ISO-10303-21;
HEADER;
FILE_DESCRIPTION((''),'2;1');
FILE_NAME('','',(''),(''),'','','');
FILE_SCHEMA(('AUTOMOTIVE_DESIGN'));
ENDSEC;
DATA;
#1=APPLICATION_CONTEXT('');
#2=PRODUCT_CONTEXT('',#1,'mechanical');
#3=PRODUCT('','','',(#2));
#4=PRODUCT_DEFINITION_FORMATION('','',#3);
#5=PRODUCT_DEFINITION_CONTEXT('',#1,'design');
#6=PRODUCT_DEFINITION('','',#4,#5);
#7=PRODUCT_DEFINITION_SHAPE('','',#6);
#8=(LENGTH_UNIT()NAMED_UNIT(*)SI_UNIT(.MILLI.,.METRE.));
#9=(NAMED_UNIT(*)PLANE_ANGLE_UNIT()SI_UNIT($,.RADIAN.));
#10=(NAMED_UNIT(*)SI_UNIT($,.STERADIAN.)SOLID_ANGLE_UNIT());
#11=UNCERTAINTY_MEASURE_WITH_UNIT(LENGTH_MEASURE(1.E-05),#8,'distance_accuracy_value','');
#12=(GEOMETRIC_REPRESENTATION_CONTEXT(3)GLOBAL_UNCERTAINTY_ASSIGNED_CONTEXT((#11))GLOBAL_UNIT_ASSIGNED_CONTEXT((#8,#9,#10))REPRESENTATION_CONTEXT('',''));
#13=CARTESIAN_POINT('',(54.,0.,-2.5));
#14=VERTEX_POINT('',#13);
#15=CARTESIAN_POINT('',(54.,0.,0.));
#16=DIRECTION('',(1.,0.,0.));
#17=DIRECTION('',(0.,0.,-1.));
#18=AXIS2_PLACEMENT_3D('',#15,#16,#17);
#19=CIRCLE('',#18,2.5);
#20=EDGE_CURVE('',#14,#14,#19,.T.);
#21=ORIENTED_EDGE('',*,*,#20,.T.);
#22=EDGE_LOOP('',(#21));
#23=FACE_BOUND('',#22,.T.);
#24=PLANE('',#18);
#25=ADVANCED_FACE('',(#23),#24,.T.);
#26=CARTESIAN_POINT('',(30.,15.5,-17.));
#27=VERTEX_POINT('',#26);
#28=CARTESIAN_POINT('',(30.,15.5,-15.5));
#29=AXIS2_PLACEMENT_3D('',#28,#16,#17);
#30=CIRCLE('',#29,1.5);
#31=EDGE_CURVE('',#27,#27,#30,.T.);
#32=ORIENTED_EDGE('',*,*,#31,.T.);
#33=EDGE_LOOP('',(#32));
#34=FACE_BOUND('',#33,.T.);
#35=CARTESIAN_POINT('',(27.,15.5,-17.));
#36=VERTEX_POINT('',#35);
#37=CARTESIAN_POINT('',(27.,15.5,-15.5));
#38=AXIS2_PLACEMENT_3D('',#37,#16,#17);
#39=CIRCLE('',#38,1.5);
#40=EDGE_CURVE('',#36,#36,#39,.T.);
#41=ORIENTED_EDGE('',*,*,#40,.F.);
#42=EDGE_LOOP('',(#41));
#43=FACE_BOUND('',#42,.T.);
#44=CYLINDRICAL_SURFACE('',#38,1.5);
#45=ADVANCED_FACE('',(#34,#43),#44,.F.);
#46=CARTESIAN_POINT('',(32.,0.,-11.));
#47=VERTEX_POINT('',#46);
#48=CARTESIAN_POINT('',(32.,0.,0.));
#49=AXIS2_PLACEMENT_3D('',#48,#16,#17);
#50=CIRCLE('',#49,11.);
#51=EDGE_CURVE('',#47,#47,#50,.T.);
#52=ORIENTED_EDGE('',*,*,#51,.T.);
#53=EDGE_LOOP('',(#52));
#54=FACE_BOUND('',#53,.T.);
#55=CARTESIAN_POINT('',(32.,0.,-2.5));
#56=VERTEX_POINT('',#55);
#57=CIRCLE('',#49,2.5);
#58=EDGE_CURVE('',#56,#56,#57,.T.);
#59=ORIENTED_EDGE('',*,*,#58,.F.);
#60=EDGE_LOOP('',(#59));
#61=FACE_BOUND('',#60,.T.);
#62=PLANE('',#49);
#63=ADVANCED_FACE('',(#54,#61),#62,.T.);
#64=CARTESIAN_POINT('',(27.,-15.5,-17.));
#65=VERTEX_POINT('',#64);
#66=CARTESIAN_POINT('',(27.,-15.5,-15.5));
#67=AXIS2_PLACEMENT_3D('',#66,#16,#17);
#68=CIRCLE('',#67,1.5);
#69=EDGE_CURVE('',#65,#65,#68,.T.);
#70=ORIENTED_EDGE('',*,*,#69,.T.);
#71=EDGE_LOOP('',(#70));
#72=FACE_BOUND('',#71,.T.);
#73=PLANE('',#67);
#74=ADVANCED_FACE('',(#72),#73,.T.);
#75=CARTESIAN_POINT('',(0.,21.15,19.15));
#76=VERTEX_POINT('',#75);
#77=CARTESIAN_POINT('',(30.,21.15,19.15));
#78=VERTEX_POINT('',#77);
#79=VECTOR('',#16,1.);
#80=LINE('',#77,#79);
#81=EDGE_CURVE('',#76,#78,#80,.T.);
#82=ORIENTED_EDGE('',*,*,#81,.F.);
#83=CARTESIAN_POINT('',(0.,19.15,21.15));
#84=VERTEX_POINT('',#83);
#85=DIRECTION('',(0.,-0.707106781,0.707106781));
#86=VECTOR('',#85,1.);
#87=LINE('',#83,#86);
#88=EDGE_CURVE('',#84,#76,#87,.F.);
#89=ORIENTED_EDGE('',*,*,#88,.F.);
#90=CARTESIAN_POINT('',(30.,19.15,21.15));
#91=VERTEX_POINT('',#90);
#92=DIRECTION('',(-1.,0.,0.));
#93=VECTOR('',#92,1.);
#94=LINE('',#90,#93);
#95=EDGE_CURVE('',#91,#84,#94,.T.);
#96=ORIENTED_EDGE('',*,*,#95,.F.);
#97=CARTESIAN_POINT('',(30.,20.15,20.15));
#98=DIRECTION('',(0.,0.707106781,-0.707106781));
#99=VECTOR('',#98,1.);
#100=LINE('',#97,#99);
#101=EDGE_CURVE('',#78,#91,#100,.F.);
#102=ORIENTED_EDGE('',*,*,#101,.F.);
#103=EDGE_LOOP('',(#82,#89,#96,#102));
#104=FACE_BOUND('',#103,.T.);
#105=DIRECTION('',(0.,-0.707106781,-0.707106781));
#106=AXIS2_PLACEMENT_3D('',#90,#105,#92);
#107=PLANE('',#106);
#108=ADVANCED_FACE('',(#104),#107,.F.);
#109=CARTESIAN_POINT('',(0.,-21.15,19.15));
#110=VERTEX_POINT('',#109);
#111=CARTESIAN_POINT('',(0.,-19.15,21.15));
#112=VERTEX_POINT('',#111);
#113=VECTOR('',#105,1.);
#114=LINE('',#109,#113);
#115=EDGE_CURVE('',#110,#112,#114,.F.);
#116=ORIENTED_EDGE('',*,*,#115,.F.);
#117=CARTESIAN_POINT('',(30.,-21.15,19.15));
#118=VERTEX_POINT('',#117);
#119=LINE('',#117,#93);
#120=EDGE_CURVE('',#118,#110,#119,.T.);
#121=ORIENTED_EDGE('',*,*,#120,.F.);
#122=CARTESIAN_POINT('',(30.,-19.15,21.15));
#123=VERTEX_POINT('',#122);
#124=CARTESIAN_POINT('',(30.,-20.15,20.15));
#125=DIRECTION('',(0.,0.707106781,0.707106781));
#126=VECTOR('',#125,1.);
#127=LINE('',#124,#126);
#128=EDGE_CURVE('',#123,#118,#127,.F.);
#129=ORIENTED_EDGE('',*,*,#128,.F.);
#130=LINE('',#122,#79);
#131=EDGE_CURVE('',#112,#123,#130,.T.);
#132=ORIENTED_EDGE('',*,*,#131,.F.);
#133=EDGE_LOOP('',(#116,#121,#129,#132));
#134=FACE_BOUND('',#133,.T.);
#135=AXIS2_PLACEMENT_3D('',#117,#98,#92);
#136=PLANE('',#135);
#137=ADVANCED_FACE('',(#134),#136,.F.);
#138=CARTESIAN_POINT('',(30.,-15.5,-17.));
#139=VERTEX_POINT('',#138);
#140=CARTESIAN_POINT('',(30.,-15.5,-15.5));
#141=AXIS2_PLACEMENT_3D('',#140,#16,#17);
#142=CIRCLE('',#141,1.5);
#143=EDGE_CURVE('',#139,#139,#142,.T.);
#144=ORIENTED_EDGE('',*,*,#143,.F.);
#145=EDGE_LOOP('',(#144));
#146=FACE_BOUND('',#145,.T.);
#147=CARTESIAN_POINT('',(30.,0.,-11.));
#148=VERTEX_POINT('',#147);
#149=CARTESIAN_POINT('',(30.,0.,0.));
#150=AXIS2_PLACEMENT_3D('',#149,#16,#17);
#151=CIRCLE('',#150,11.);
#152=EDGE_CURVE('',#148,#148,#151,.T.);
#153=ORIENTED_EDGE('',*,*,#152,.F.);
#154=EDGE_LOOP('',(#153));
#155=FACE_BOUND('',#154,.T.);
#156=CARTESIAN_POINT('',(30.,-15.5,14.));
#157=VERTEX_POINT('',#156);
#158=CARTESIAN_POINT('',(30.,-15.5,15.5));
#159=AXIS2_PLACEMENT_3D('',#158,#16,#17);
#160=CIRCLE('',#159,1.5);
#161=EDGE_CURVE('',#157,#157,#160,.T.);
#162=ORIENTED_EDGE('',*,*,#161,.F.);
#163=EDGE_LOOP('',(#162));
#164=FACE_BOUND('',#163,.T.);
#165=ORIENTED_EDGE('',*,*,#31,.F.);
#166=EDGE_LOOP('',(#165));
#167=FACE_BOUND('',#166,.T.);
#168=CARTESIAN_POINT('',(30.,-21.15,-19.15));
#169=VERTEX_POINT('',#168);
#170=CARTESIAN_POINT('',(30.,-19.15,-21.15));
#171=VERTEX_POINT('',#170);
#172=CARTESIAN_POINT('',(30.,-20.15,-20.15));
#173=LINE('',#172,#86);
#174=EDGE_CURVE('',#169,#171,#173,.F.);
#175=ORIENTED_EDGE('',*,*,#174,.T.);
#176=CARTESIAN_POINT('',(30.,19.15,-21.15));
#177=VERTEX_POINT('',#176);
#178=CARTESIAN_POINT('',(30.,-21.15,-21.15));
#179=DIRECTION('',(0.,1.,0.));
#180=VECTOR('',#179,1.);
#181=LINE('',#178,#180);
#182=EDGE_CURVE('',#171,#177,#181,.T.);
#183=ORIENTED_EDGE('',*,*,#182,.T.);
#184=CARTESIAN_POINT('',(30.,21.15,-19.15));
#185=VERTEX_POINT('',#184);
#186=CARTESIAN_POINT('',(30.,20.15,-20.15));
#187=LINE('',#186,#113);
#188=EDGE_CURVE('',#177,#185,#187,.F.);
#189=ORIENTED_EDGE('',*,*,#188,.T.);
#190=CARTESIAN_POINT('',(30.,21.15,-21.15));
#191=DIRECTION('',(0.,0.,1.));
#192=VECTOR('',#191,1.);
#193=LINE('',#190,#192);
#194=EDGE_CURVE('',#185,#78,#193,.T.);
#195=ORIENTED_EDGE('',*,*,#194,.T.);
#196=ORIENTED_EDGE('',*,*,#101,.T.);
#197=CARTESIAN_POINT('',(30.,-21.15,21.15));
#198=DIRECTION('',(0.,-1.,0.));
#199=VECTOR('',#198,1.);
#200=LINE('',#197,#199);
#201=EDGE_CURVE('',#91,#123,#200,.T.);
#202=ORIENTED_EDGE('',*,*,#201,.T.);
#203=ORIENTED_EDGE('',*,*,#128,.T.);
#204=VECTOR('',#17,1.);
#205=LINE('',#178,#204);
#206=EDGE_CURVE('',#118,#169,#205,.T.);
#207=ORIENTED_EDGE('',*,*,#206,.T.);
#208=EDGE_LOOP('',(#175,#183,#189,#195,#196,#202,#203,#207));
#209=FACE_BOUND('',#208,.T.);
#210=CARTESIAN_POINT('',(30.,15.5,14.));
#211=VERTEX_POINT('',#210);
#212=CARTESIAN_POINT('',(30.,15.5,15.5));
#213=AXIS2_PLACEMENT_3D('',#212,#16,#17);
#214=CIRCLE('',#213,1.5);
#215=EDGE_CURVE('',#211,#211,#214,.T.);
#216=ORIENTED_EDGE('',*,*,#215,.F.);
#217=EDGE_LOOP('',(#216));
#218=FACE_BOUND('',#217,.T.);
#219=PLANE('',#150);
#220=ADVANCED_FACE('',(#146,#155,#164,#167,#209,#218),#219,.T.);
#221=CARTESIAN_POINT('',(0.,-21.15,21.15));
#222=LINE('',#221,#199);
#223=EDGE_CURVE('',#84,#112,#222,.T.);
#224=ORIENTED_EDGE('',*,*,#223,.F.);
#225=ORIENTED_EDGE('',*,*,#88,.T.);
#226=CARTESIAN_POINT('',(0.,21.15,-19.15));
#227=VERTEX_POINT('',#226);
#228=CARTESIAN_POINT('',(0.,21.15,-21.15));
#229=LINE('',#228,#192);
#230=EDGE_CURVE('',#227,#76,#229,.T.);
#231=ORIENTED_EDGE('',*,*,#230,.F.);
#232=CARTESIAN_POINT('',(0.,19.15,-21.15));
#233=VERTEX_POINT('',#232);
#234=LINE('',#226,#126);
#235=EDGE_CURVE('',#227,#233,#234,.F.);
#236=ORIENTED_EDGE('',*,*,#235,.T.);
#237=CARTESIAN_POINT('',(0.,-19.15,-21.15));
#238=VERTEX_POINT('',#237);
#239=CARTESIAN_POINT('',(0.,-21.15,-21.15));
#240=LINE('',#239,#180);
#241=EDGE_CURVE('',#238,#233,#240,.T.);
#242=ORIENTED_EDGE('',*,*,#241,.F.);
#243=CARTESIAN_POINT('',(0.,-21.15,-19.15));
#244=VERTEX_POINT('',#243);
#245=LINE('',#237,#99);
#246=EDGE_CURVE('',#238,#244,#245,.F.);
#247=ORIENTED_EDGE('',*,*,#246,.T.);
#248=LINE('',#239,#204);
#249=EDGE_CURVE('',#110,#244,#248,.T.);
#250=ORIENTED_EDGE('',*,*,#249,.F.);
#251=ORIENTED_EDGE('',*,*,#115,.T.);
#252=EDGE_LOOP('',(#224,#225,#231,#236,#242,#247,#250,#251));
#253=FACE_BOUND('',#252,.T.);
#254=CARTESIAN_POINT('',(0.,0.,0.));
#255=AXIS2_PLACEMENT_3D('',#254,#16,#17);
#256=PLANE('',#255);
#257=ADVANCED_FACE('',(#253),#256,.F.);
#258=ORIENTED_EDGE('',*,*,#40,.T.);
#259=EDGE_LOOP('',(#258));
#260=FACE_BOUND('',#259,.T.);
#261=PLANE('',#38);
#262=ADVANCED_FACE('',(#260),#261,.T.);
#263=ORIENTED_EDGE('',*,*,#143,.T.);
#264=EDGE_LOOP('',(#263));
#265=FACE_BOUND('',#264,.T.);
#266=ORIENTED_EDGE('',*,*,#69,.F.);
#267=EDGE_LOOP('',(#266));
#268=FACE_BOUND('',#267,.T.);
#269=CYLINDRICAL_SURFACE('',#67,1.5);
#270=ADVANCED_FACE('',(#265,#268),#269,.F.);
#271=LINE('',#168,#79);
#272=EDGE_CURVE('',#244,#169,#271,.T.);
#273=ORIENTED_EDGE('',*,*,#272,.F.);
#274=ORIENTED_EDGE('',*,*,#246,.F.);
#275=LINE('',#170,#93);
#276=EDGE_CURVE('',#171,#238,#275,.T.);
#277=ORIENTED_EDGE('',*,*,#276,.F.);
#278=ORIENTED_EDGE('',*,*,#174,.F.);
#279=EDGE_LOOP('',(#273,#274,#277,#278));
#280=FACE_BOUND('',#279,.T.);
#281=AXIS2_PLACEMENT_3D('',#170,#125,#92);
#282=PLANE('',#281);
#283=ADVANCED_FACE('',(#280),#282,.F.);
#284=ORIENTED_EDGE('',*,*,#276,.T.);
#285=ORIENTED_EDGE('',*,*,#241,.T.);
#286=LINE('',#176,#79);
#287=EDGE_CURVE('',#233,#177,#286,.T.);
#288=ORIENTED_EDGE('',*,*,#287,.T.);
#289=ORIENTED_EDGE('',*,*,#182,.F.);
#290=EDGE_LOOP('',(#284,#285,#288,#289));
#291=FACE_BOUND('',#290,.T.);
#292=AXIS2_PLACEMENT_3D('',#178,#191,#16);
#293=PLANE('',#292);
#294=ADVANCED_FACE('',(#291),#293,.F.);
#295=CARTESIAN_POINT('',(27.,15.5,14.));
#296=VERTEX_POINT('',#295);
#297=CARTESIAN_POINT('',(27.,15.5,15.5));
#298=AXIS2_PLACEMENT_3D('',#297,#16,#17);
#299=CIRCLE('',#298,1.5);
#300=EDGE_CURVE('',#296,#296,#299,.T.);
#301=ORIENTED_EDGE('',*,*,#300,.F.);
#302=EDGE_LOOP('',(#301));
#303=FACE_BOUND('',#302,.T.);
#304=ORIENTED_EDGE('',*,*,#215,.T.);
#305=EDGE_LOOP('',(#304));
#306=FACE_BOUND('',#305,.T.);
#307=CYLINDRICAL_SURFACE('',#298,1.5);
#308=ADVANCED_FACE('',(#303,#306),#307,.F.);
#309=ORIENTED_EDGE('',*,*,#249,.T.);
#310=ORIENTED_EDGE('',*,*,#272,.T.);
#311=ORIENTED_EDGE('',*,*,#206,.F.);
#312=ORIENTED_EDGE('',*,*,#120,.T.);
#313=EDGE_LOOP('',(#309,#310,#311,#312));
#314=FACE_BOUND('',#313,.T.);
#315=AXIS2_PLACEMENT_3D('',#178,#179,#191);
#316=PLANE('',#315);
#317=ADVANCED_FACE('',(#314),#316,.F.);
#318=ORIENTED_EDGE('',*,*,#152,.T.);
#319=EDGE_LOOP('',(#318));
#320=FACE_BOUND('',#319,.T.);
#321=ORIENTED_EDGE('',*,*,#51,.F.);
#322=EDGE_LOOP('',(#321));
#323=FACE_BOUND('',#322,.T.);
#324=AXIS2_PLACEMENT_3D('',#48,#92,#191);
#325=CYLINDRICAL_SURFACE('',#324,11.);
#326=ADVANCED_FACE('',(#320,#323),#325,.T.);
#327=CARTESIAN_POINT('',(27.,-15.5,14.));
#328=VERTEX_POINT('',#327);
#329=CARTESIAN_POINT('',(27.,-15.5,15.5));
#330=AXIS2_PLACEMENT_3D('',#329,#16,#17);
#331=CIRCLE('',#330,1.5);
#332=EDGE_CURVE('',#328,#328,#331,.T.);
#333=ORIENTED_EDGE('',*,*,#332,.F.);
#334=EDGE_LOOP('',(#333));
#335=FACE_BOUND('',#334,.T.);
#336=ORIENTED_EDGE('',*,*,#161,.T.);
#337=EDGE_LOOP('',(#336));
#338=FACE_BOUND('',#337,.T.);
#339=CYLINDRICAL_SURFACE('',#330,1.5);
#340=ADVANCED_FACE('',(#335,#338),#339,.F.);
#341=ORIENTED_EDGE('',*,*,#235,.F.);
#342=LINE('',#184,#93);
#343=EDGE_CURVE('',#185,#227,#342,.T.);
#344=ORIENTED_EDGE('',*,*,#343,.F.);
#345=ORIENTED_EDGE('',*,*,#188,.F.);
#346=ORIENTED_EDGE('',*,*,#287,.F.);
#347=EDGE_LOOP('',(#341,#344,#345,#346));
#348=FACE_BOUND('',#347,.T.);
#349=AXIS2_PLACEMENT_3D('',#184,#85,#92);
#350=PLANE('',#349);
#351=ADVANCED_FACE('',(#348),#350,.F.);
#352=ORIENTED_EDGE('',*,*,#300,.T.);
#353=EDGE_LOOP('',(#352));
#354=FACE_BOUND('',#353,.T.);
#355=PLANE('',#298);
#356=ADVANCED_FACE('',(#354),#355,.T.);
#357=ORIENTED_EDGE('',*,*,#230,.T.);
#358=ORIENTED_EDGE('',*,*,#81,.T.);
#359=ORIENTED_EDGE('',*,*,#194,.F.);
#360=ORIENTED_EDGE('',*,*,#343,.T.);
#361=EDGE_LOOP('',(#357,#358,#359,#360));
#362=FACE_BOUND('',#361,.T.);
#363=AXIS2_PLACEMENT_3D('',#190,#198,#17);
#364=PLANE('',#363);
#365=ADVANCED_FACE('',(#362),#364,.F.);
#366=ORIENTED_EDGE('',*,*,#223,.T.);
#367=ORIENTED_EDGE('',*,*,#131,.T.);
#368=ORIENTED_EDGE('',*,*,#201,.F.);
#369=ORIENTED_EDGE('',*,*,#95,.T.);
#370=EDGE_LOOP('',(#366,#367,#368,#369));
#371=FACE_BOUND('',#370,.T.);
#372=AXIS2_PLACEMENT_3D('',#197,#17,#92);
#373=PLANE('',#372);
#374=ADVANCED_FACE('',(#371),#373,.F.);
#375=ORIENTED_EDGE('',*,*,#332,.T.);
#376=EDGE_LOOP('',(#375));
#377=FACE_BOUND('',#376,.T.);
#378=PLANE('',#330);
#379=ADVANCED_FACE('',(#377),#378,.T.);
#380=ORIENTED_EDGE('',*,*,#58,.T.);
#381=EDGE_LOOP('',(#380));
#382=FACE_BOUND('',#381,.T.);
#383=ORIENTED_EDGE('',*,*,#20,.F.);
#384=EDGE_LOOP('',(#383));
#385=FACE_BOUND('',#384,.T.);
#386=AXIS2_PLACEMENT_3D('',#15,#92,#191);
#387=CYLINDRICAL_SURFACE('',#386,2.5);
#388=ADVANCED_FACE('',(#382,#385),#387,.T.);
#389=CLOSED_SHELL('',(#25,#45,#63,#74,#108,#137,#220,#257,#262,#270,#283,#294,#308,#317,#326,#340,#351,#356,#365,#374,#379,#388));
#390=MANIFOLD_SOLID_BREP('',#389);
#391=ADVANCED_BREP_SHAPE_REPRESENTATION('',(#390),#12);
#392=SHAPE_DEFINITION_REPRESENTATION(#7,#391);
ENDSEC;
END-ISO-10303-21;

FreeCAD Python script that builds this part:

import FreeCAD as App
import Part
import Sketcher
from FreeCAD import Vector


def edges_at(feature, points):
    """Names of the edges that pass closest to the given points."""
    edges = feature.Shape.Edges
    near = lambda p: min(range(len(edges)), key=lambda i: edges[i].distToShape(Part.Vertex(*p))[0])
    return sorted({f"Edge{near(p) + 1}" for p in points})


def add_polygon(sketch, points):
    """Adds a closed chain of lines whose ends are joined by coincident constraints."""
    first, n = sketch.GeometryCount, len(points)
    for a, b in zip(points, points[1:] + points[:1]):
        sketch.addGeometry(Part.LineSegment(App.Vector(*a, 0), App.Vector(*b, 0)), False)
    for i in range(n):
        sketch.addConstraint(Sketcher.Constraint("Coincident", first + i, 2, first + (i + 1) % n, 1))

doc = App.newDocument("Part")
body = doc.addObject("PartDesign::Body", "Body")

# Sketch on YZ plane
sketch1 = body.newObject("Sketcher::SketchObject", "Sketch")
sketch1.AttachmentSupport = (doc.getObject("YZ_Plane"), [""])
sketch1.MapMode = "FlatFace"
add_polygon(sketch1, [(21, 21), (-21, 21), (-21, -21), (21, -21)])  # lines 0-3
sketch1.addConstraint([
    Sketcher.Constraint("Horizontal", 0),
    Sketcher.Constraint("Vertical", 1),
    Sketcher.Constraint("Horizontal", 2),
    Sketcher.Constraint("Vertical", 3),
    Sketcher.Constraint("Symmetric", 0, 2, 2, 2, -1, 1),
    Sketcher.Constraint("Equal", 2, 1),
    Sketcher.Constraint("DistanceX", 0, 2, 0, 1, 42.3),
])
pad1 = body.newObject("PartDesign::Pad", "Pad")
pad1.Profile = sketch1
pad1.Length = 30
doc.recompute()

chamfer = body.newObject("PartDesign::Chamfer", "Chamfer")
chamfer.Base = (pad1, edges_at(pad1, [
    (15, 21.15, 21.15),
    (15, 21.15, -21.15),
    (15, -21.15, -21.15),
    (15, -21.15, 21.15),
]))
chamfer.Size = 2

# Sketch on YZ plane
sketch2 = body.newObject("Sketcher::SketchObject", "Sketch001")
sketch2.AttachmentSupport = (doc.getObject("YZ_Plane"), [""])
sketch2.MapMode = "FlatFace"
sketch2.AttachmentOffset = App.Placement(Vector(0, 0, 30), App.Rotation())
sketch2.addGeometry([
    Part.Circle(Vector(15.5, 15.5, 0), Vector(0, 0, 1), 1.5),
    Part.Circle(Vector(15.5, -15.5, 0), Vector(0, 0, 1), 1.5),
    Part.Circle(Vector(-15.5, -15.5, 0), Vector(0, 0, 1), 1.5),
    Part.Circle(Vector(-15.5, 15.5, 0), Vector(0, 0, 1), 1.5),
], False)
sketch2.addConstraint([
    Sketcher.Constraint("Equal", 0, 1),
    Sketcher.Constraint("Equal", 1, 2),
    Sketcher.Constraint("Equal", 2, 3),
    Sketcher.Constraint("Symmetric", 0, 3, 2, 3, -1, 1),
    Sketcher.Constraint("Symmetric", 1, 3, 3, 3, -1, 1),
    Sketcher.Constraint("Symmetric", 1, 3, 2, 3, -2),
    Sketcher.Constraint("Diameter", 0, 3.0),
    Sketcher.Constraint("DistanceY", 1, 3, 0, 3, 31.0),
    Sketcher.Constraint("DistanceX", 2, 3, 1, 3, 31.0),
])
pocket1 = body.newObject("PartDesign::Pocket", "Pocket")
pocket1.Profile = sketch2
pocket1.Length = 3

# Sketch on YZ plane
sketch3 = body.newObject("Sketcher::SketchObject", "Sketch002")
sketch3.AttachmentSupport = (doc.getObject("YZ_Plane"), [""])
sketch3.MapMode = "FlatFace"
sketch3.AttachmentOffset = App.Placement(Vector(0, 0, 30), App.Rotation())
sketch3.addGeometry(Part.Circle(Vector(0, 0, 0), Vector(0, 0, 1), 11), False)
sketch3.addConstraint([
    Sketcher.Constraint("Coincident", 0, 3, -1, 1),
    Sketcher.Constraint("Diameter", 0, 22.0),
])
pad2 = body.newObject("PartDesign::Pad", "Pad001")
pad2.Profile = sketch3
pad2.Length = 2

# Sketch on YZ plane
sketch4 = body.newObject("Sketcher::SketchObject", "Sketch003")
sketch4.AttachmentSupport = (doc.getObject("YZ_Plane"), [""])
sketch4.MapMode = "FlatFace"
sketch4.AttachmentOffset = App.Placement(Vector(0, 0, 32), App.Rotation())
sketch4.addGeometry(Part.Circle(Vector(0, 0, 0), Vector(0, 0, 1), 2.5), False)
sketch4.addConstraint([
    Sketcher.Constraint("Coincident", 0, 3, -1, 1),
    Sketcher.Constraint("Diameter", 0, 5.0),
])
pad3 = body.newObject("PartDesign::Pad", "Pad002")
pad3.Profile = sketch4
pad3.Length = 22

doc.recompute()
